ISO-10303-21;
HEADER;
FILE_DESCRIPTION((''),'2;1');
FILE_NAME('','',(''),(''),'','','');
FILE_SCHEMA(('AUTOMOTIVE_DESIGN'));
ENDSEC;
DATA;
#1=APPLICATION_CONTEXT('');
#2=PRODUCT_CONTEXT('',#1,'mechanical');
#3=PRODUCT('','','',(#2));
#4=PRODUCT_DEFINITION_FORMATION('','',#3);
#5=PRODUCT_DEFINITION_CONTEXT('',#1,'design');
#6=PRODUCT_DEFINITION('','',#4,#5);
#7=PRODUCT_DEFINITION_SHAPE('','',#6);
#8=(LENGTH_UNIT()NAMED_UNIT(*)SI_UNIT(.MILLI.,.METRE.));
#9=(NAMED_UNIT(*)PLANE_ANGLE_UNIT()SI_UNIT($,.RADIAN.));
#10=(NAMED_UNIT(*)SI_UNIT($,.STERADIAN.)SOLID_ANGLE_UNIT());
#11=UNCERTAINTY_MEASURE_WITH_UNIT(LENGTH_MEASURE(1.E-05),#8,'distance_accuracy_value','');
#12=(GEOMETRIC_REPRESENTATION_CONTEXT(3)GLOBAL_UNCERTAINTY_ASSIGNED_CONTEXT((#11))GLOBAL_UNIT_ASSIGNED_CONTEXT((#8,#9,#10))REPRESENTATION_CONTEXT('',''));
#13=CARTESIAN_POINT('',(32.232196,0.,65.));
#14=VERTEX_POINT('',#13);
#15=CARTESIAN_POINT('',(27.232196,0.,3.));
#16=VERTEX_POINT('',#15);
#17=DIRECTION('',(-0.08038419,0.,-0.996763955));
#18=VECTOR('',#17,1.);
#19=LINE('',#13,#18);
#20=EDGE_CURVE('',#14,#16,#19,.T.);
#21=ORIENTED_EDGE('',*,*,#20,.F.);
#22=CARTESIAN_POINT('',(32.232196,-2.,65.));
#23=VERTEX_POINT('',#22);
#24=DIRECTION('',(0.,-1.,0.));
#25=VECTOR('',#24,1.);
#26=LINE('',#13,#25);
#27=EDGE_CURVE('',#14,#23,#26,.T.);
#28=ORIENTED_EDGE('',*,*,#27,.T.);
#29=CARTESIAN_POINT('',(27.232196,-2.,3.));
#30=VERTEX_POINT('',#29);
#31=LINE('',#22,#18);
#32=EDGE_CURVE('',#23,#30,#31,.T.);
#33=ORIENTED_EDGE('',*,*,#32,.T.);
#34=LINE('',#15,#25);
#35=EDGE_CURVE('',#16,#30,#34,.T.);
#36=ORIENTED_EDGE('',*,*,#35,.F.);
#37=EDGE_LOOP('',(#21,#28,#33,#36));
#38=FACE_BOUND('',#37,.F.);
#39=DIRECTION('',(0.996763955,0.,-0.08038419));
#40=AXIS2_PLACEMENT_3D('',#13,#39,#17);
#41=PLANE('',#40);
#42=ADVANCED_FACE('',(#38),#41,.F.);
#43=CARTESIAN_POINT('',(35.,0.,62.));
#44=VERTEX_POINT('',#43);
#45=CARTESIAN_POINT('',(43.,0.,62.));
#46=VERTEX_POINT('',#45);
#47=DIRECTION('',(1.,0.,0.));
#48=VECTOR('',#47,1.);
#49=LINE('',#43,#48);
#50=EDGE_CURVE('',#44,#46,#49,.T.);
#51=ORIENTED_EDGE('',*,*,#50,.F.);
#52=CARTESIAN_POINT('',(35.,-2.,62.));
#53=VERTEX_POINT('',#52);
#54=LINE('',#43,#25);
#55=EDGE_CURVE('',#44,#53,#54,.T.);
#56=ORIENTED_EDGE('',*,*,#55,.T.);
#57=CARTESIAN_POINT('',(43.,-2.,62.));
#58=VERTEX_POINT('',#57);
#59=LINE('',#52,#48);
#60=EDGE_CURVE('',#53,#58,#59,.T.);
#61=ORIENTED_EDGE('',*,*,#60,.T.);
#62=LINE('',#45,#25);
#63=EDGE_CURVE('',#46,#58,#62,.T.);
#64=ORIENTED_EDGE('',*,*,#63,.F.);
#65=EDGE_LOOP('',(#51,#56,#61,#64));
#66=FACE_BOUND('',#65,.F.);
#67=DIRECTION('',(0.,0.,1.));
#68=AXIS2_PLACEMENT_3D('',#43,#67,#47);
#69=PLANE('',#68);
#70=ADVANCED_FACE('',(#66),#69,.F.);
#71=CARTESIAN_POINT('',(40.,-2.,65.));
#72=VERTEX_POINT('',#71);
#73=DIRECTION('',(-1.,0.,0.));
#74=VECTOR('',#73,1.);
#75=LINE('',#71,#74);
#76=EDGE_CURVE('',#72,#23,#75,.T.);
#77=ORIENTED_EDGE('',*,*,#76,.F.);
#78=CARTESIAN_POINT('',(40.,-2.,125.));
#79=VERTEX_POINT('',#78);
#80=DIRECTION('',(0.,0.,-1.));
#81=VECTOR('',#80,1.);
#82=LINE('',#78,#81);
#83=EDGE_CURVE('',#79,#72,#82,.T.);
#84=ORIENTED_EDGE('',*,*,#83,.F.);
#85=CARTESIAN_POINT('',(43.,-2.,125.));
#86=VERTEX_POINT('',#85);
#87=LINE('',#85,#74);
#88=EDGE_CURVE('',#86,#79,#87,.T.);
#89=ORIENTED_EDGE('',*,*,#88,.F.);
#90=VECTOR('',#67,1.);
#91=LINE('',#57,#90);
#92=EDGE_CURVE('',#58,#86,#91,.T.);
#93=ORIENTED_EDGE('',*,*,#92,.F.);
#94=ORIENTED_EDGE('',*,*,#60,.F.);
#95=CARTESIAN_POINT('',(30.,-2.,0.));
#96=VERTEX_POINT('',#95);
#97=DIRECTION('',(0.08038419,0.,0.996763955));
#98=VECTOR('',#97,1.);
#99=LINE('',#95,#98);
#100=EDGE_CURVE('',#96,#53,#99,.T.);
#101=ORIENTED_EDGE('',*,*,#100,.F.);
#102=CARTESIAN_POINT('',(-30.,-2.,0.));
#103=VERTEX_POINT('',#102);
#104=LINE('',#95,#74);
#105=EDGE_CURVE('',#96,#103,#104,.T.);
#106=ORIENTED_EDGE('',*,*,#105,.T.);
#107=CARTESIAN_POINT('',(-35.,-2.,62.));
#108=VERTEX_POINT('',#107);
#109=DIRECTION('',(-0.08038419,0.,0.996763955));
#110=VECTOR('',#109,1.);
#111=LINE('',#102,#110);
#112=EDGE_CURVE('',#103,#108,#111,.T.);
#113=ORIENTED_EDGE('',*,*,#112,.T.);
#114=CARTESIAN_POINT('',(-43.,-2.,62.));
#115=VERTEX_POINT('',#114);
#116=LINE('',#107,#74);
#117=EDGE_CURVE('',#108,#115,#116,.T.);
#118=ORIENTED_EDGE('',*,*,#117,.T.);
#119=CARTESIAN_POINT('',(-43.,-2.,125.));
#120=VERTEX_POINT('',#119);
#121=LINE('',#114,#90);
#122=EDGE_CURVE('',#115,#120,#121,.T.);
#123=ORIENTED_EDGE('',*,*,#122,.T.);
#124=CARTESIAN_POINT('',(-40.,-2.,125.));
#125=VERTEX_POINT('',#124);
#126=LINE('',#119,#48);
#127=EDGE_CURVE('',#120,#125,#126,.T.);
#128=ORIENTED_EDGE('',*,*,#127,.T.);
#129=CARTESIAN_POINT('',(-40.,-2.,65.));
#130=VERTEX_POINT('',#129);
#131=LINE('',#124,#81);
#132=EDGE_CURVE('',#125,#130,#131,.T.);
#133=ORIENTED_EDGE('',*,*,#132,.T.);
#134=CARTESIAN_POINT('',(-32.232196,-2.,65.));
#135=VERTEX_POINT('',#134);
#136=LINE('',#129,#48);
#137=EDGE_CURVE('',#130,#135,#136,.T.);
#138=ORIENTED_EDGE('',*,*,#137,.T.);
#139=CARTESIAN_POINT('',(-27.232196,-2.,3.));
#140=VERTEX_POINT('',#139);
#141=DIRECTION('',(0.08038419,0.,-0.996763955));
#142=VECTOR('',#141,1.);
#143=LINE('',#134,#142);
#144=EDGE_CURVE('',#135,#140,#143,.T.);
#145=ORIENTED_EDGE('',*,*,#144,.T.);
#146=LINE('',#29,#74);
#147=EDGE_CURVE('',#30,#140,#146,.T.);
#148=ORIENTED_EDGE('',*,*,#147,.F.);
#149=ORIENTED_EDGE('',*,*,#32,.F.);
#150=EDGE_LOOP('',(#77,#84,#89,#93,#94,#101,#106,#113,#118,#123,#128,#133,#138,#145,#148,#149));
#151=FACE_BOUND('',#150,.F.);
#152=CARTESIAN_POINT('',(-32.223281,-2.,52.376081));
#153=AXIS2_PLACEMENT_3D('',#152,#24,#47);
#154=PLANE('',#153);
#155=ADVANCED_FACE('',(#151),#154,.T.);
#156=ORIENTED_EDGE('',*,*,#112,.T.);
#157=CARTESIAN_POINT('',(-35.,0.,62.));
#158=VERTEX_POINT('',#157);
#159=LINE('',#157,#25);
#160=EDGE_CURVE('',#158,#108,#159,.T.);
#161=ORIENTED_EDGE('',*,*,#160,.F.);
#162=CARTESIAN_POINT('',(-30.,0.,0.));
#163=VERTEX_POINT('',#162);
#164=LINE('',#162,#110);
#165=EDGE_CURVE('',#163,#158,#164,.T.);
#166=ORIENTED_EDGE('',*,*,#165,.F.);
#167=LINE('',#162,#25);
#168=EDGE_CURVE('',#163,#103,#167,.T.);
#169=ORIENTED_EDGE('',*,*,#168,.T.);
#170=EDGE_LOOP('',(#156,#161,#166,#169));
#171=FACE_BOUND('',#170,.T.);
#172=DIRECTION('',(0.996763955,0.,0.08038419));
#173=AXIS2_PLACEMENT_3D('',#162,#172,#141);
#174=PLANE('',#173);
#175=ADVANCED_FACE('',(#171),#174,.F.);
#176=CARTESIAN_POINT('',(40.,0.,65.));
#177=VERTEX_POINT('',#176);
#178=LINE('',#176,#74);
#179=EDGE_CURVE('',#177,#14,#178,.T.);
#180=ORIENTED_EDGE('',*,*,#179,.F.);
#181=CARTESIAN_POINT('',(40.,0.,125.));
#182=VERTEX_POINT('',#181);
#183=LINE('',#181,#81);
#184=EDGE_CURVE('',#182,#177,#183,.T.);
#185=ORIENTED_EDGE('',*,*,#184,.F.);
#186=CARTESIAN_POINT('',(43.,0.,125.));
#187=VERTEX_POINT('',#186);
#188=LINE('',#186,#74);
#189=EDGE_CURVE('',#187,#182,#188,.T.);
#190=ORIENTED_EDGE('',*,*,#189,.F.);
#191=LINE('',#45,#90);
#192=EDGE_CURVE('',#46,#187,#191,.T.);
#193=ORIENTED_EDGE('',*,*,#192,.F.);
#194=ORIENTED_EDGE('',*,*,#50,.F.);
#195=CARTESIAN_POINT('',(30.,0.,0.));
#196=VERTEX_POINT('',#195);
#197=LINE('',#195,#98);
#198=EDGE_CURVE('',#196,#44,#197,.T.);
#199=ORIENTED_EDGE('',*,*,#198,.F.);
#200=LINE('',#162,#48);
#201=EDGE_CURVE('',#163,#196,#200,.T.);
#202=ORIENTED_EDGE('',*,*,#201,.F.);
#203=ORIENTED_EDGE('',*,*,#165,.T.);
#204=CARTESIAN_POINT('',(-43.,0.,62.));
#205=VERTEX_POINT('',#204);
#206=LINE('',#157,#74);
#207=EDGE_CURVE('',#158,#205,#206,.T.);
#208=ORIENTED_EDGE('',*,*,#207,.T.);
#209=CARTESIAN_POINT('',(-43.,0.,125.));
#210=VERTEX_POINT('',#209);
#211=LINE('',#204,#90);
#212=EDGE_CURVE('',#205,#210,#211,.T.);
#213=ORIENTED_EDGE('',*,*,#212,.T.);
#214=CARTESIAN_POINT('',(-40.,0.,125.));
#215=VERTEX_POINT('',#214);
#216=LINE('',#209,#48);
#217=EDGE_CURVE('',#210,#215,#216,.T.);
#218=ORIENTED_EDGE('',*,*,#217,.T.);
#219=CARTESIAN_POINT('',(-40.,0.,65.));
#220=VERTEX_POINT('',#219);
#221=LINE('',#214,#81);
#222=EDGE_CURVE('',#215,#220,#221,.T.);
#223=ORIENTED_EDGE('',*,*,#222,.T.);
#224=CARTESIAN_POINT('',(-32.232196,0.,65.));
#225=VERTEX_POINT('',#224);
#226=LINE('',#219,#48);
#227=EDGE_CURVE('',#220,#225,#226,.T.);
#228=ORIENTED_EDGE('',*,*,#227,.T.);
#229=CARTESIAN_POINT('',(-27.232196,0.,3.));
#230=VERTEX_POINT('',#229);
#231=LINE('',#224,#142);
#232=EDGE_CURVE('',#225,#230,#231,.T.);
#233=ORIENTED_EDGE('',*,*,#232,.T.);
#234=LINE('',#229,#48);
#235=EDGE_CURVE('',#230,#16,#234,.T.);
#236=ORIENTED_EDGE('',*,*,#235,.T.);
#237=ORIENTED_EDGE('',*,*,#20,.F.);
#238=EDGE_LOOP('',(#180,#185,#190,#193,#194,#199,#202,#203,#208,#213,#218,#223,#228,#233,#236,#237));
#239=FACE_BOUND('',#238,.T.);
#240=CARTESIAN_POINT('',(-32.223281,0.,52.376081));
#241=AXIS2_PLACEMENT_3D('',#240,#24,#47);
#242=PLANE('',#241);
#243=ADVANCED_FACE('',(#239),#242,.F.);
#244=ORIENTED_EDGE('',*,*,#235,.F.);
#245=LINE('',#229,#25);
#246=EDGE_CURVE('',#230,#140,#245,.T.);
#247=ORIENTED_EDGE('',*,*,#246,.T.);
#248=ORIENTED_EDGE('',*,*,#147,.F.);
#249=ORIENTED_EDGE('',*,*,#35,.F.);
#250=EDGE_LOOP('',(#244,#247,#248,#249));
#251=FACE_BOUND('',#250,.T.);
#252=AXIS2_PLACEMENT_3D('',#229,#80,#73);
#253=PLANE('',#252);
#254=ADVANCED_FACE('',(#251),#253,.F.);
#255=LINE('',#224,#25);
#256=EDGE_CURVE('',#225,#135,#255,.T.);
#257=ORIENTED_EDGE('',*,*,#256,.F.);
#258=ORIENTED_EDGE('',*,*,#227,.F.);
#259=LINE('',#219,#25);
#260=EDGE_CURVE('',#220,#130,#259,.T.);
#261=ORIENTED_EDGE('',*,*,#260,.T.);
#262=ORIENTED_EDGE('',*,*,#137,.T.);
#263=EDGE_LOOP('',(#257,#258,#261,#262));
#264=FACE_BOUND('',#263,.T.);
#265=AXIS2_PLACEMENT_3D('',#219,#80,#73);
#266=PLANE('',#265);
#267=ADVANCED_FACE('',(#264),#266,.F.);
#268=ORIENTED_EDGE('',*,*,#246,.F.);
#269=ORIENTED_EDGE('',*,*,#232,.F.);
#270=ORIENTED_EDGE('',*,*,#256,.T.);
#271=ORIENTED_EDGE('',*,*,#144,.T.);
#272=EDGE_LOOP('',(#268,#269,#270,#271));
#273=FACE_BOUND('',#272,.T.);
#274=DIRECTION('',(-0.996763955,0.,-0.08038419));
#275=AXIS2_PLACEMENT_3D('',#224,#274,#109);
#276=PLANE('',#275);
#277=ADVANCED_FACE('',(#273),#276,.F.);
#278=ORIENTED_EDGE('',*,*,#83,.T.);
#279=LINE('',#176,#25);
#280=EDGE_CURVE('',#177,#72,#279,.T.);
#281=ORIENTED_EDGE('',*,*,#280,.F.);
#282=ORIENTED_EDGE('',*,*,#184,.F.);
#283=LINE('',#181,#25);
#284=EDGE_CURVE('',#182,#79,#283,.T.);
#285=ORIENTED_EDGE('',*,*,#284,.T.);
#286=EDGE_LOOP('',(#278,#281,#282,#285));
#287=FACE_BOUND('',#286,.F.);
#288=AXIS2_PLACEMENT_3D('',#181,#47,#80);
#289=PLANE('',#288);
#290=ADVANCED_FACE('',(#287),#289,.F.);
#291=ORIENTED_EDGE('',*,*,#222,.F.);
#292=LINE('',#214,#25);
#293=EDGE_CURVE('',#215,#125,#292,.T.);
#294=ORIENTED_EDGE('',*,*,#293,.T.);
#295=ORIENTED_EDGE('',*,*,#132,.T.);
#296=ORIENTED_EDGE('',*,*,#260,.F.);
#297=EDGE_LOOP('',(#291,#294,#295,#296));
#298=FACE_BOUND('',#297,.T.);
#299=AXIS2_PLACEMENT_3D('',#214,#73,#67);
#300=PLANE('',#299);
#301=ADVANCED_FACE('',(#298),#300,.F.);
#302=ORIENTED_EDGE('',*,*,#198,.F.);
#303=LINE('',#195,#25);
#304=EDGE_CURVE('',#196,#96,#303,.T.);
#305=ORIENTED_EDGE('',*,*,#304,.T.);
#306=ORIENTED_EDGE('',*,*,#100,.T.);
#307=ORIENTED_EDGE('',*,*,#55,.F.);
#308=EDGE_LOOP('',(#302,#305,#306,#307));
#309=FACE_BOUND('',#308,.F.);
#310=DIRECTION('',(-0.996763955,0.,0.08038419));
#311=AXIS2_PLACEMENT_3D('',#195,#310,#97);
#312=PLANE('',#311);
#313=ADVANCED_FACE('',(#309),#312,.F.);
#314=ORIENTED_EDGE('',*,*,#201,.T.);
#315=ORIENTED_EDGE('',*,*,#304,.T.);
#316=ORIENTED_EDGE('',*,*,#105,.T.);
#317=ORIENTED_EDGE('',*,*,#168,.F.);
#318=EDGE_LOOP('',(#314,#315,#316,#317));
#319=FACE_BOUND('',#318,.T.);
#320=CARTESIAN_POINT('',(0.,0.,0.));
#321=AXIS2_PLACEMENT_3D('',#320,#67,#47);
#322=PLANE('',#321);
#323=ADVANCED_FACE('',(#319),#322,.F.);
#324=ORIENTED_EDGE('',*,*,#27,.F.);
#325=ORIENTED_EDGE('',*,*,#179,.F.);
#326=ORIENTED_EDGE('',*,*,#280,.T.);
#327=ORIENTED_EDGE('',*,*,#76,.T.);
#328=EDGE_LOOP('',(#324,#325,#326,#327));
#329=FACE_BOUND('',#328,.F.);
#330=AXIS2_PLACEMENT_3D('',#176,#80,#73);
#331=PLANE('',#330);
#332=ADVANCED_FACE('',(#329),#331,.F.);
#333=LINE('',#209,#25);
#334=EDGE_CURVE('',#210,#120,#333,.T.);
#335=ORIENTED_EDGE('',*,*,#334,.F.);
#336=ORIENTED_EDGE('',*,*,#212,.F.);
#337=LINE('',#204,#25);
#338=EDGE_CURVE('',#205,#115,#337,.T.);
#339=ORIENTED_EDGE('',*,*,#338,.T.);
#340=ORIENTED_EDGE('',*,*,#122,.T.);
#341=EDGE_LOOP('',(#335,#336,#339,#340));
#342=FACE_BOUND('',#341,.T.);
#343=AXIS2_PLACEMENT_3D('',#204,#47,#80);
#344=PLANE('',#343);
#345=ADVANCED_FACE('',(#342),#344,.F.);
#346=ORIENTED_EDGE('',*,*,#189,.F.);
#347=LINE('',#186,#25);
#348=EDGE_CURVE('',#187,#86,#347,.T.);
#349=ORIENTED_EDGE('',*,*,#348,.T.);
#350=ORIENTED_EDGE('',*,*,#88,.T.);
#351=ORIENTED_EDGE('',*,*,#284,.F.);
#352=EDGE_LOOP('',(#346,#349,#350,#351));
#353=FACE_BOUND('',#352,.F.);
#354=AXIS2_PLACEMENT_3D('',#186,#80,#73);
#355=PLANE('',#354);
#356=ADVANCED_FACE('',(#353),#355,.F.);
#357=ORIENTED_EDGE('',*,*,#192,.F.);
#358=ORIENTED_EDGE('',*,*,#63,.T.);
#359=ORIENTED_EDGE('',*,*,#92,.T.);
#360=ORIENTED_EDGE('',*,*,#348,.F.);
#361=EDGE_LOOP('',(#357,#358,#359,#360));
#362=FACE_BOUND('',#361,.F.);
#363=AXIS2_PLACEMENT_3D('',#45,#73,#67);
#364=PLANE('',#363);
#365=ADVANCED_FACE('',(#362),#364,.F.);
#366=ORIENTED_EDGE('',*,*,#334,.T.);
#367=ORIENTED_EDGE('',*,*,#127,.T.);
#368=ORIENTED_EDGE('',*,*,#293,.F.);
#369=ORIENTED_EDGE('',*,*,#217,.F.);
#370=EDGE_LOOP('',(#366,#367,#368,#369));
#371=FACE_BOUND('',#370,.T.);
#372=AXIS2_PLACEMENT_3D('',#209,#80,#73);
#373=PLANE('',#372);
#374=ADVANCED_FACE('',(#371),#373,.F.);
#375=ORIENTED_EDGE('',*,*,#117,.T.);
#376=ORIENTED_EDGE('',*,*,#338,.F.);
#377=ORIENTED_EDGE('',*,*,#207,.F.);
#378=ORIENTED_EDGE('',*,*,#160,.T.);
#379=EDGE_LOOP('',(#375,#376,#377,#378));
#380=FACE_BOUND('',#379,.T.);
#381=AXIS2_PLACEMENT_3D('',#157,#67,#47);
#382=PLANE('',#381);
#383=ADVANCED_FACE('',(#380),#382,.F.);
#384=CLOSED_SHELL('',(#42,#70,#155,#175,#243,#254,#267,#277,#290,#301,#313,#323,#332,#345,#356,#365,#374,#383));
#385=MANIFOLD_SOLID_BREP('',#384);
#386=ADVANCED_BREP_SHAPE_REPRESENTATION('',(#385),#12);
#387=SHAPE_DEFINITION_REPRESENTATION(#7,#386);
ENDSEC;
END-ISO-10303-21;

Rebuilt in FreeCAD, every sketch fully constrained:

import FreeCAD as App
import Part
import Sketcher

V = App.Vector
Q = App.Units.Quantity


def add_polygon(sketch, points):
    """Adds a closed chain of lines whose ends are joined by coincident constraints."""
    first, n = sketch.GeometryCount, len(points)
    for a, b in zip(points, points[1:] + points[:1]):
        sketch.addGeometry(Part.LineSegment(App.Vector(*a, 0), App.Vector(*b, 0)), False)
    for i in range(n):
        sketch.addConstraint(Sketcher.Constraint("Coincident", first + i, 2, first + (i + 1) % n, 1))

doc = App.newDocument("Part")
body = doc.addObject("PartDesign::Body", "Body")

# Sketch on XZ plane
sketch1 = doc.addObject("Sketcher::SketchObject", "Sketch")
body.addObject(sketch1)
sketch1.AttachmentSupport = (doc.XZ_Plane, [""])
sketch1.MapMode = "FlatFace"
add_polygon(sketch1, [(0, 3), (0, 0), (30, 0), (35, 62), (43, 62), (43, 125), (40, 125), (40, 65), (32.2, 65), (27.2, 3)])  # lines 0-9
sketch1.addConstraint([
    Sketcher.Constraint("Vertical", 0),
    Sketcher.Constraint("Horizontal", 1),
    Sketcher.Constraint("Horizontal", 3),
    Sketcher.Constraint("Vertical", 4),
    Sketcher.Constraint("Horizontal", 5),
    Sketcher.Constraint("Vertical", 6),
    Sketcher.Constraint("Horizontal", 7),
    Sketcher.Constraint("Horizontal", 9),
    Sketcher.Constraint("Coincident", 0, 2, -1, 1),
    Sketcher.Constraint("Parallel", 2, 8),
    Sketcher.Constraint("Equal", 5, 0),
    Sketcher.Constraint("Equal", 2, 8),
    Sketcher.Constraint("DistanceX", 1, 1, 1, 2, Q("30 mm")),
    Sketcher.Constraint("DistanceX", 3, 1, 3, 2, Q("8 mm")),
    Sketcher.Constraint("DistanceX", 5, 2, 5, 1, Q("3 mm")),
    Sketcher.Constraint("DistanceY", 4, 1, 4, 2, Q("63 mm")),
    Sketcher.Constraint("DistanceX", -1, 1, 2, 2, Q("35 mm")),
    Sketcher.Constraint("DistanceY", -1, 1, 2, 2, Q("62 mm")),
    Sketcher.Constraint("DistanceX", 7, 2, 7, 1, Q("7.767804 mm")),
])
pad1 = doc.addObject("PartDesign::Pad", "Pad")
body.addObject(pad1)
pad1.Profile = sketch1
pad1.Length = 2
body2 = doc.addObject("PartDesign::Body", "Body001")
doc.recompute()

body2.BaseFeature = body
doc.recompute()

mirroring = doc.addObject("Part::Mirroring", "Mirroring")
mirroring.Source = body
mirroring.Base = V(0, 0, 0)
mirroring.Normal = V(1, 0, 0)
body3 = doc.addObject("PartDesign::Body", "Body002")
body3.BaseFeature = mirroring
boolean = doc.addObject("PartDesign::Boolean", "Boolean")
body2.addObject(boolean)
boolean.Type = "Fuse"
boolean.addObjects([body3])
doc.recompute()
mirroring.Visibility = False

doc.recompute()
